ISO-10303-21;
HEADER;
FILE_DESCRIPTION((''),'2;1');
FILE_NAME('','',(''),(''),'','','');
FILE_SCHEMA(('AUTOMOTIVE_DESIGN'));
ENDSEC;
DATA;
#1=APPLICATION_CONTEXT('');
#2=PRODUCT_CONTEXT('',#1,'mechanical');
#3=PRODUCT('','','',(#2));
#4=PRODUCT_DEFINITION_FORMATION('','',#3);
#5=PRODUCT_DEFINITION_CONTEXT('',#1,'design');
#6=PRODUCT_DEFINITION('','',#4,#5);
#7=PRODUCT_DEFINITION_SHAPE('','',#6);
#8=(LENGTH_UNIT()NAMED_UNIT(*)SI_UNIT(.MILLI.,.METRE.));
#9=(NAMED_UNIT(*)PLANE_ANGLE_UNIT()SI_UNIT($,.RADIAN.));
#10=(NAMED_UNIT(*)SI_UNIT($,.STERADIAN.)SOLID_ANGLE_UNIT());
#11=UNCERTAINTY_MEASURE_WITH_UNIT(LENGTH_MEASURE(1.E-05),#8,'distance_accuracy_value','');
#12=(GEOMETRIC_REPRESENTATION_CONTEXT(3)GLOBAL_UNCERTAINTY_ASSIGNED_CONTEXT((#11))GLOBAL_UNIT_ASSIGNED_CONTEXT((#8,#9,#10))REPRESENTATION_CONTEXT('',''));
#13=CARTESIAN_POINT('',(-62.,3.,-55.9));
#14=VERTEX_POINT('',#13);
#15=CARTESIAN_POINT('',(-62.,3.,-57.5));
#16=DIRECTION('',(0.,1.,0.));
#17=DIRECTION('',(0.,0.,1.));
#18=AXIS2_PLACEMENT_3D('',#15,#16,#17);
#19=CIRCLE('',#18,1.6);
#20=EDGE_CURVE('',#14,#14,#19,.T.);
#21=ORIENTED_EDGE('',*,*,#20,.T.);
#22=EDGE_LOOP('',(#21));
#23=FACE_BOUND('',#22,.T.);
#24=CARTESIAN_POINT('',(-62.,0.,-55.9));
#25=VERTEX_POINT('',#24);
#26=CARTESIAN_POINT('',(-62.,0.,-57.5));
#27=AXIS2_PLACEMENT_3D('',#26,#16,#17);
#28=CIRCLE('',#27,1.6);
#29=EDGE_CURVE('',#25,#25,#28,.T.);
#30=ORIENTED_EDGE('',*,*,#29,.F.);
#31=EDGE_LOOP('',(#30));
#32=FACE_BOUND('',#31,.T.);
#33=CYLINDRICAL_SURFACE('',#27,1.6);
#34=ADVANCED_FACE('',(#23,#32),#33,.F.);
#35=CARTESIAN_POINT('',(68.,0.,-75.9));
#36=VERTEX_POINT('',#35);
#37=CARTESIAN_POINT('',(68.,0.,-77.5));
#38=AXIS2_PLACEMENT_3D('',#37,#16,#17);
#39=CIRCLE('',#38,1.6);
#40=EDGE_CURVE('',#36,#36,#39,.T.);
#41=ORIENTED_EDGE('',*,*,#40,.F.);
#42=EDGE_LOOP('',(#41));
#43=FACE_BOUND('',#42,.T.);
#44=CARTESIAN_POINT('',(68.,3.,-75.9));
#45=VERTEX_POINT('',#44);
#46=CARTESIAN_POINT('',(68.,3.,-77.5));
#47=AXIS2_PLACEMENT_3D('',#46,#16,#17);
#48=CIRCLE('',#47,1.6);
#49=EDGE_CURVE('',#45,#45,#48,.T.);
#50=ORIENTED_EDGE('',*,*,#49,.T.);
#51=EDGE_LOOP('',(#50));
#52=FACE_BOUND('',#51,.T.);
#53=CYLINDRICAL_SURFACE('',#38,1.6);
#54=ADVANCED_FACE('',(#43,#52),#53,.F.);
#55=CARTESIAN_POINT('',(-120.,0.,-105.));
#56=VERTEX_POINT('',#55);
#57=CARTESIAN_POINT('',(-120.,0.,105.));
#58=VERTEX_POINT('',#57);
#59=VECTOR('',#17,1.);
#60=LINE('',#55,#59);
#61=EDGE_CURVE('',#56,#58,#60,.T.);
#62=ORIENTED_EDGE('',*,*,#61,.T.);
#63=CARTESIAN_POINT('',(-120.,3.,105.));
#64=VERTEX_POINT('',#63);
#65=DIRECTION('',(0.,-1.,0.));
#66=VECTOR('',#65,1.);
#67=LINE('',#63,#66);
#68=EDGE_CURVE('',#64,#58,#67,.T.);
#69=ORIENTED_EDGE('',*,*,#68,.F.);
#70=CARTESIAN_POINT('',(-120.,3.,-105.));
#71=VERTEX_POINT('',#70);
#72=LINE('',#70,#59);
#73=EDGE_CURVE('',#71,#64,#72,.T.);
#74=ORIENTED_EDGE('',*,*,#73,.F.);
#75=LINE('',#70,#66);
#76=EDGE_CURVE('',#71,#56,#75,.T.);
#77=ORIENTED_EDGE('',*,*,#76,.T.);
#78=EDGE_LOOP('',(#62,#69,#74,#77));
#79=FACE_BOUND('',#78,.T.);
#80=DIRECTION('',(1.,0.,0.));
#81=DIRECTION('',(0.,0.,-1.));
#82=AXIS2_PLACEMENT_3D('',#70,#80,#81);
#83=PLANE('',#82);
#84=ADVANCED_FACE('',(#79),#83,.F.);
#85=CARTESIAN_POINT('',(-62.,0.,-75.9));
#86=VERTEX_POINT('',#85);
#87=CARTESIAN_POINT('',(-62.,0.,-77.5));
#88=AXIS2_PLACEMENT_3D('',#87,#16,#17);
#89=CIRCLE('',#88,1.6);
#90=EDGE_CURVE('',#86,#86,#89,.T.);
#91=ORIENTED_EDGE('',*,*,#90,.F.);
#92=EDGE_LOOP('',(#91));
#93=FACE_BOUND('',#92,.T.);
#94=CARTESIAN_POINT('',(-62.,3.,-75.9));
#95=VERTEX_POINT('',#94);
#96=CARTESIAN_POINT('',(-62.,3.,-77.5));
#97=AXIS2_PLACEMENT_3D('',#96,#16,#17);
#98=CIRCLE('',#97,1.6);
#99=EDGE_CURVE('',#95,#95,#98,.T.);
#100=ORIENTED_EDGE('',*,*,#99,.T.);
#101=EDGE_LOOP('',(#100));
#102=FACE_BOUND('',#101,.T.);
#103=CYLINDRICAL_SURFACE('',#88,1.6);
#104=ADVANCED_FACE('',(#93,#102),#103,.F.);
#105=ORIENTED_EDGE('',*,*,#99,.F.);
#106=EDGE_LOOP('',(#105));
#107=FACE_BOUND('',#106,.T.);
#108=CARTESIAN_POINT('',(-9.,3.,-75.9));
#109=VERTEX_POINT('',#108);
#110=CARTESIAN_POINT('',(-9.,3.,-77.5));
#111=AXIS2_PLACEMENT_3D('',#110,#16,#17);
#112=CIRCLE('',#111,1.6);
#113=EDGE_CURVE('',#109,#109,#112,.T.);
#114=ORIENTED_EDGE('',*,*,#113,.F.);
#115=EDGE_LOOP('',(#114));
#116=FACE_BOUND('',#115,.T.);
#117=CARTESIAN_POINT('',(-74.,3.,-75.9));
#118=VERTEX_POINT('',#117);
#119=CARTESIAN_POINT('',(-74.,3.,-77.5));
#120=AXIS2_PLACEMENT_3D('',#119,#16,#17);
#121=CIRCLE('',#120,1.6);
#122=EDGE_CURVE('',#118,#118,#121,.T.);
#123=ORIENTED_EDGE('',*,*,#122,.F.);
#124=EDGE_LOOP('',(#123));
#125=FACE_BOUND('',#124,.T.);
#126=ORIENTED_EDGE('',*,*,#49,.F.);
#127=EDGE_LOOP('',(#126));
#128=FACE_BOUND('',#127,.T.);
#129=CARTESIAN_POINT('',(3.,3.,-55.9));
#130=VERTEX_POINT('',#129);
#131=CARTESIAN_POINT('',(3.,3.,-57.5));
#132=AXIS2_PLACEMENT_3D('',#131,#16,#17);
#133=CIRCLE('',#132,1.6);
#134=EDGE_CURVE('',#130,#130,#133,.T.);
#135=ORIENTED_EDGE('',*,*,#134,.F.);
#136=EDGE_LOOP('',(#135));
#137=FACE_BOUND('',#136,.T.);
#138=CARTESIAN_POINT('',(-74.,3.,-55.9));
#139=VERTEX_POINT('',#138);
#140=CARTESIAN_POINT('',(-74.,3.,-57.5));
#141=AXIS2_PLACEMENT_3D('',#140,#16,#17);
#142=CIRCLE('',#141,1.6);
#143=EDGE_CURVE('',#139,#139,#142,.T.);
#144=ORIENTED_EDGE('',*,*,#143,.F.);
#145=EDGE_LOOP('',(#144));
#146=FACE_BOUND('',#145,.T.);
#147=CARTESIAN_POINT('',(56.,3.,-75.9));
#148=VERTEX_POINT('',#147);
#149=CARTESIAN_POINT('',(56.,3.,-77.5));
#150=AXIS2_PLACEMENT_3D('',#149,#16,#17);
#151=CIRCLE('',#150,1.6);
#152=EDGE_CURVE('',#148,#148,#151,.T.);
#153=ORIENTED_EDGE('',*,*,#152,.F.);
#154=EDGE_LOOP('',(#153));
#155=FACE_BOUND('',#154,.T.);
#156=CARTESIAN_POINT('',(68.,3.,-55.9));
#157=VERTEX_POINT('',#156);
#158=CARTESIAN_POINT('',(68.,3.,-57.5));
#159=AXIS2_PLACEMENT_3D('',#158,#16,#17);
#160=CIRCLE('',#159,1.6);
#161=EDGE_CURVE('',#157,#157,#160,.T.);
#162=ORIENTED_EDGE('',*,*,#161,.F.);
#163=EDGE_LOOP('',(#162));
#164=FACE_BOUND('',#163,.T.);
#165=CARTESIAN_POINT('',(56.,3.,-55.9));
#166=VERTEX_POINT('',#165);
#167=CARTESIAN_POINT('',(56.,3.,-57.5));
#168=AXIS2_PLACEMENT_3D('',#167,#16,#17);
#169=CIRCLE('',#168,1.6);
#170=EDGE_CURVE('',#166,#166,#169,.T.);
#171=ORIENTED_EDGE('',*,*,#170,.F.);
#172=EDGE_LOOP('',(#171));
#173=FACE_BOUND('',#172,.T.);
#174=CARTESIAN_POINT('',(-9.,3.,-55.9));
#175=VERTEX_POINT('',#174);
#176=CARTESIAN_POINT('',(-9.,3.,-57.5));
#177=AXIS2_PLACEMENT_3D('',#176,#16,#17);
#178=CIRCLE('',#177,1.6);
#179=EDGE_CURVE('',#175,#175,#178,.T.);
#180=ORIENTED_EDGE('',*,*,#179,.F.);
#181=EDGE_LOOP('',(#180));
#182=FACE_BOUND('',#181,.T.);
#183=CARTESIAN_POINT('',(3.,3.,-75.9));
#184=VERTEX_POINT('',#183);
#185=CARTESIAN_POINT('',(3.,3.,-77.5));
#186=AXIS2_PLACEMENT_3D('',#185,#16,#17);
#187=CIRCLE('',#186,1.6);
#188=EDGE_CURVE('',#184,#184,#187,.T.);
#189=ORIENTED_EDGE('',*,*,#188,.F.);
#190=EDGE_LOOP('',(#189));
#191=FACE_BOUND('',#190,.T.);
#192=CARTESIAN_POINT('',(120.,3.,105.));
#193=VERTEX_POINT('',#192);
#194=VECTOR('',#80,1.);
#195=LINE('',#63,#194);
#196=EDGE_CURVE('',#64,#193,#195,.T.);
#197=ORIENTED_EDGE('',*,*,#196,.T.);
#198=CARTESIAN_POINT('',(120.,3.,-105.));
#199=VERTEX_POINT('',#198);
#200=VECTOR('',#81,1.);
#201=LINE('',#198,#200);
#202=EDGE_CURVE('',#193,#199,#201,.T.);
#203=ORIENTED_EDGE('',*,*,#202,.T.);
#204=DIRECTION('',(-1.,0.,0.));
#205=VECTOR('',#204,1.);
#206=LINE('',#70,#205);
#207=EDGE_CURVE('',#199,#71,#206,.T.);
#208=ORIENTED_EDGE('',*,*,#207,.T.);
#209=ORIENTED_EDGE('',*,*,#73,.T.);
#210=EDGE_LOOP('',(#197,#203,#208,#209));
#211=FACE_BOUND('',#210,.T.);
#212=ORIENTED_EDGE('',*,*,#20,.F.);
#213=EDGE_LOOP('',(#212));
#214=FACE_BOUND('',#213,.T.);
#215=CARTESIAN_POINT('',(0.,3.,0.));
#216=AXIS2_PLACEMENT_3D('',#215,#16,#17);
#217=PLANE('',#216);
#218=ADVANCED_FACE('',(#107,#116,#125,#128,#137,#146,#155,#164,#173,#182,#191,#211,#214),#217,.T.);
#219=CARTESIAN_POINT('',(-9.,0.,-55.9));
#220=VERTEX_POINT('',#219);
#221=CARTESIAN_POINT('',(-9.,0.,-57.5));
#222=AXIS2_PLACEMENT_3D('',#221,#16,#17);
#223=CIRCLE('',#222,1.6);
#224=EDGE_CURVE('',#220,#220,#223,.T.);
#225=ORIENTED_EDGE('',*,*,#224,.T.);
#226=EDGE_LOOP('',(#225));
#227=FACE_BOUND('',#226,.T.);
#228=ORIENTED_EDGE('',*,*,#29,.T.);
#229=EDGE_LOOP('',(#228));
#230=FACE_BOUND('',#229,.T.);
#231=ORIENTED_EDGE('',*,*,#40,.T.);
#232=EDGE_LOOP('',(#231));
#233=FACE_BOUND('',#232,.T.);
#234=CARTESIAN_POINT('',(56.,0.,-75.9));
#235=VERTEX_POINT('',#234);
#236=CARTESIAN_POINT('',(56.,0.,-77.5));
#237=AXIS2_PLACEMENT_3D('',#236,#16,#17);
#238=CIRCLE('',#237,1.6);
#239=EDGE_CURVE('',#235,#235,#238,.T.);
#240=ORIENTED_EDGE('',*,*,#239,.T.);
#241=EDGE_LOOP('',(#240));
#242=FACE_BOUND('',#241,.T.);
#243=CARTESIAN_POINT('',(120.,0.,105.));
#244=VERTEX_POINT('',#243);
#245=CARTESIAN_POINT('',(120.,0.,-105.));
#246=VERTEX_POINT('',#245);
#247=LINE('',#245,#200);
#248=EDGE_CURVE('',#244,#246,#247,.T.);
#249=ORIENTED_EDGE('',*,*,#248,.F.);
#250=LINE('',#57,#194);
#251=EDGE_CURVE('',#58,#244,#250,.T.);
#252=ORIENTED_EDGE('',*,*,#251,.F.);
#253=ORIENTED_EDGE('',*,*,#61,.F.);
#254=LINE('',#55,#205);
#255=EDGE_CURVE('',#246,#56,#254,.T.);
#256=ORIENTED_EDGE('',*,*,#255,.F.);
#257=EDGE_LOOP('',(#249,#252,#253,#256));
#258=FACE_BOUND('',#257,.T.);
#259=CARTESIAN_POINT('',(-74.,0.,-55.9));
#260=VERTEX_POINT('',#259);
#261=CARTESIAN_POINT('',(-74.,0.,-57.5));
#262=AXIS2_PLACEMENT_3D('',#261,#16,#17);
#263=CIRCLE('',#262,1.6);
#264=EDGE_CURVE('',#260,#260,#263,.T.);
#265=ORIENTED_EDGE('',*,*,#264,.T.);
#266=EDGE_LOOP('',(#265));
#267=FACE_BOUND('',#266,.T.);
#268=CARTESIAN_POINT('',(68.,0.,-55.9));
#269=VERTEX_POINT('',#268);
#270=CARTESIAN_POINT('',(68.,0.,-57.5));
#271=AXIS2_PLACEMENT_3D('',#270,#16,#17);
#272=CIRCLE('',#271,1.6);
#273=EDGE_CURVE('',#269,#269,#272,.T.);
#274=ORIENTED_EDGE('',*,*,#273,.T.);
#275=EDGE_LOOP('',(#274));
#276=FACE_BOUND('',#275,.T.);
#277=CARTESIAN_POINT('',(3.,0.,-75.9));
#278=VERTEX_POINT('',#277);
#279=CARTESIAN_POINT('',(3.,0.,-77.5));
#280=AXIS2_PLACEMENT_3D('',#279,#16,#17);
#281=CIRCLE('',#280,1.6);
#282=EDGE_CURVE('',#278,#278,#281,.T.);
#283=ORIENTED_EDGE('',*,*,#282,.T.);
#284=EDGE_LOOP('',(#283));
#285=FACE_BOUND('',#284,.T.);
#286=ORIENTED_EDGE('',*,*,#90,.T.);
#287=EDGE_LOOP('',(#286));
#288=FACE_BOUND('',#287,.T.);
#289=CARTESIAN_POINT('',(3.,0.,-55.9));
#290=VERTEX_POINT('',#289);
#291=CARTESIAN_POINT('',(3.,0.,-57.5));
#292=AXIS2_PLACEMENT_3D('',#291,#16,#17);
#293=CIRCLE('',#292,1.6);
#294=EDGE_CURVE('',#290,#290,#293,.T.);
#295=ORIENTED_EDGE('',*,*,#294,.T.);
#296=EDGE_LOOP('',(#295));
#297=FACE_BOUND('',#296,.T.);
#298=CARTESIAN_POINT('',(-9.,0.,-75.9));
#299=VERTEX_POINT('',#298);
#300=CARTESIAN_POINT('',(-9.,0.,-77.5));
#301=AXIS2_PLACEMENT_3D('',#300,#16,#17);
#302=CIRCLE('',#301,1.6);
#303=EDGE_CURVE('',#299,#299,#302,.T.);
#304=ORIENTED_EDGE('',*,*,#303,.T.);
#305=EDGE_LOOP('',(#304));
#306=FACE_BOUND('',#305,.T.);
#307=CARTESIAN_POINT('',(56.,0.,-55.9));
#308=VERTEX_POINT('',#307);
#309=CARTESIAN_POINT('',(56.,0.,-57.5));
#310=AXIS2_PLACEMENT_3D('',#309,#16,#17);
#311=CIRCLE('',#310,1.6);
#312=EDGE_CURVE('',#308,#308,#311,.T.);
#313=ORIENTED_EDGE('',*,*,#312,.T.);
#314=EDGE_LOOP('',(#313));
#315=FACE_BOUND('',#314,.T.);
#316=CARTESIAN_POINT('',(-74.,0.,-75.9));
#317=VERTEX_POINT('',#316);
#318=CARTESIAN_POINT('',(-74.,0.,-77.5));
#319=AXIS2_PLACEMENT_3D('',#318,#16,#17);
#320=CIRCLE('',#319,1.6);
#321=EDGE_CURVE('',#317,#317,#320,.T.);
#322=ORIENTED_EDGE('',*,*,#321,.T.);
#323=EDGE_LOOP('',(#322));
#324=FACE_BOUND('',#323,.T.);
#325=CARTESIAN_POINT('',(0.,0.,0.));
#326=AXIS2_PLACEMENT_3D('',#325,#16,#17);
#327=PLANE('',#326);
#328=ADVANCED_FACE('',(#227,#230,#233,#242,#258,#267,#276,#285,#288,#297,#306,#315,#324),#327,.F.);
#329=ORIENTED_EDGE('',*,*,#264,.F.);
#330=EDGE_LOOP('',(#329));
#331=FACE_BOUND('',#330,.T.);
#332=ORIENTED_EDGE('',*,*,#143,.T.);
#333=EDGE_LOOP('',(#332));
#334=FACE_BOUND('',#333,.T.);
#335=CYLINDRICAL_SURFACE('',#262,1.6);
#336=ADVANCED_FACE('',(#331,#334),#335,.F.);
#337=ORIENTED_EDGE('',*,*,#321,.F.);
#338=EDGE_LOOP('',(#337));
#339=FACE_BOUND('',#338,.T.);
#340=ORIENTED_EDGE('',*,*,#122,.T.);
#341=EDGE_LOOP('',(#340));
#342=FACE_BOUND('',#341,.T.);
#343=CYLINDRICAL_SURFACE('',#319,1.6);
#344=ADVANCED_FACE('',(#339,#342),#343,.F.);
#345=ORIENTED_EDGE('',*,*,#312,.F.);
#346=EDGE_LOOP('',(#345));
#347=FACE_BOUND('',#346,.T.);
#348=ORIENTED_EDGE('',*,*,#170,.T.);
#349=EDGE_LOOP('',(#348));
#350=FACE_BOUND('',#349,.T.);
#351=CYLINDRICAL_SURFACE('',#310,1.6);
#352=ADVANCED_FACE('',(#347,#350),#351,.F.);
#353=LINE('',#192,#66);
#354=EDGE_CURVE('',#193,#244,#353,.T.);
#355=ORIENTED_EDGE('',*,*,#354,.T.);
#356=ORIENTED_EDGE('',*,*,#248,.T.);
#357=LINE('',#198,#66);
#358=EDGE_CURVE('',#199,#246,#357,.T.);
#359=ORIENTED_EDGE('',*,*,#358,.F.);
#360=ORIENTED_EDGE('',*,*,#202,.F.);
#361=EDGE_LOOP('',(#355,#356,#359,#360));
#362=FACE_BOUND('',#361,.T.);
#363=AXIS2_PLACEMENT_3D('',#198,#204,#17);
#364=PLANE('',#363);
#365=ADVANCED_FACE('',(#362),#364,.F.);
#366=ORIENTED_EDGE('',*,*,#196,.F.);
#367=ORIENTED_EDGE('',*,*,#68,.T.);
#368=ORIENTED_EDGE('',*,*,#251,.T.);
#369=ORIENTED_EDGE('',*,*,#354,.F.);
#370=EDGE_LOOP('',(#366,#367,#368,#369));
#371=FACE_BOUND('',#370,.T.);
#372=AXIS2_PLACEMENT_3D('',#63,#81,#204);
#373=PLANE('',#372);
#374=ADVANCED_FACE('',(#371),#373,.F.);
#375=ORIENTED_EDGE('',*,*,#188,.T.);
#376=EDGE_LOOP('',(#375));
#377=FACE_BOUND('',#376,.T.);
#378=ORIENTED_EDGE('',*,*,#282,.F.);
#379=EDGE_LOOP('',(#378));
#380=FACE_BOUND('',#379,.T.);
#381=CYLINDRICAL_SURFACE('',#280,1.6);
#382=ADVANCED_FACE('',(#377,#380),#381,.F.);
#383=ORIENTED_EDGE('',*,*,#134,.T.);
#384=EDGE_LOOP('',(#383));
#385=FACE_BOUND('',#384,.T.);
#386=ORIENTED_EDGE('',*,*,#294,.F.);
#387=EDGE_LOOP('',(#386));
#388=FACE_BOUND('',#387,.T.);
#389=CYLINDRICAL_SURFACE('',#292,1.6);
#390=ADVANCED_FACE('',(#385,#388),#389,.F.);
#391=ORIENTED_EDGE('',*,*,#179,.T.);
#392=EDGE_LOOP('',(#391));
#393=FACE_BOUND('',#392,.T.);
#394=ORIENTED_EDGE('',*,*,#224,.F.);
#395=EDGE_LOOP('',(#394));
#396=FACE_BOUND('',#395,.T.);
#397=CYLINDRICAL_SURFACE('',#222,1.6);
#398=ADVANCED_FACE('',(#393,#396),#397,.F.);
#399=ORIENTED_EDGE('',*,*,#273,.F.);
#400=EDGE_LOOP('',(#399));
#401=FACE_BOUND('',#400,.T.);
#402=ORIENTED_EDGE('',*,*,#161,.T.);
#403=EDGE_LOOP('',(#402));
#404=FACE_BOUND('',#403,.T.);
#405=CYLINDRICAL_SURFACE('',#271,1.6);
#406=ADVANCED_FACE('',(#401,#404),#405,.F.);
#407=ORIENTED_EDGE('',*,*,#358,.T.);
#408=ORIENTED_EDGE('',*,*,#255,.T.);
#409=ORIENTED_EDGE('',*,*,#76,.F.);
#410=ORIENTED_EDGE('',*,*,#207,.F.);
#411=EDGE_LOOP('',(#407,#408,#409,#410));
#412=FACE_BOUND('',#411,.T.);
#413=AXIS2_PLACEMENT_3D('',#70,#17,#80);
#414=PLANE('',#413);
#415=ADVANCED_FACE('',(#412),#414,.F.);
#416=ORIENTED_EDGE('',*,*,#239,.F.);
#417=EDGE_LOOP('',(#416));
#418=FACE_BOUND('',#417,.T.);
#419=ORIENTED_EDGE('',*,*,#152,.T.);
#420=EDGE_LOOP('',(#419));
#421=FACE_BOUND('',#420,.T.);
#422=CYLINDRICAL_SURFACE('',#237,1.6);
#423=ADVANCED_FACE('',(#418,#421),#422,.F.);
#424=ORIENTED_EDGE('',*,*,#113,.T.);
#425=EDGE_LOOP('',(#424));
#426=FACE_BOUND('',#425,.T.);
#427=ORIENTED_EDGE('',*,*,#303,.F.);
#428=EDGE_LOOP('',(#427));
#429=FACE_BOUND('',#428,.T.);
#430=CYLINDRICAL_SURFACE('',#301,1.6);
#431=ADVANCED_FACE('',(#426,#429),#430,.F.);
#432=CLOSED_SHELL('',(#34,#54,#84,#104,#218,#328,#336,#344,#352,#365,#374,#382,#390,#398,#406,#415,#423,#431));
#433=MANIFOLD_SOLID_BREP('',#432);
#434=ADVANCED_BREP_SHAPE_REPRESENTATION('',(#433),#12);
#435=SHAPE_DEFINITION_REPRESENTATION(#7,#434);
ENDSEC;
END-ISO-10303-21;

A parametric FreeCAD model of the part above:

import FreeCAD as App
import Part
import Sketcher

V = App.Vector
Q = App.Units.Quantity

doc = App.newDocument("Part")
params = doc.addObject("Spreadsheet::Sheet", "Params")
for row, (alias, value) in enumerate([
    ("sketch1_width", "240 mm"),
    ("sketch1_height", "210 mm"),
    ("pad1_length", "3 mm"),
    ("sketch2_diameter", "3.2 mm"),
    ("pocket1_length", "320.960813 mm"),
    ("linearpattern_pitch", "65 mm"),
], start=1):
    params.set(f"A{row}", alias)
    params.set(f"B{row}", "=" + value)
    params.setAlias(f"B{row}", alias)

body = doc.addObject("PartDesign::Body", "Body")

sketch1 = body.newObject("Sketcher::SketchObject", "Sketch")
sketch1.AttachmentSupport = (doc.getObject("XZ_Plane"), [""])
sketch1.MapMode = "FlatFace"
sketch1.addGeometry([
    Part.LineSegment(V(-120, -105, 0), V(-120, 105, 0)),
    Part.LineSegment(V(-120, 105, 0), V(120, 105, 0)),
    Part.LineSegment(V(120, 105, 0), V(120, -105, 0)),
    Part.LineSegment(V(120, -105, 0), V(-120, -105, 0)),
], False)
sketch1.addConstraint([
    Sketcher.Constraint("Coincident", 0, 2, 1, 1),
    Sketcher.Constraint("Coincident", 1, 2, 2, 1),
    Sketcher.Constraint("Coincident", 2, 2, 3, 1),
    Sketcher.Constraint("Coincident", 3, 2, 0, 1),
    Sketcher.Constraint("Vertical", 0),
    Sketcher.Constraint("Horizontal", 1),
    Sketcher.Constraint("Vertical", 2),
    Sketcher.Constraint("Horizontal", 3),
    Sketcher.Constraint("Symmetric", 0, 2, 2, 2, -1, 1),
    Sketcher.Constraint("DistanceX", 1, 1, 1, 2, Q("240 mm")),
    Sketcher.Constraint("DistanceY", 0, 1, 0, 2, Q("210 mm")),
])
sketch1.setExpression("Constraints[9]", "Params.sketch1_width")
sketch1.setExpression("Constraints[10]", "Params.sketch1_height")
pad1 = body.newObject("PartDesign::Pad", "Pad")
pad1.Profile = sketch1
pad1.setExpression("Length", "Params.pad1_length")
pad1.Reversed = True

sketch2 = body.newObject("Sketcher::SketchObject", "Sketch001")
sketch2.AttachmentSupport = (doc.getObject("XZ_Plane"), [""])
sketch2.MapMode = "FlatFace"
sketch2.AttachmentOffset = App.Placement(V(0, 0, -3), App.Rotation())
sketch2.addGeometry([
    Part.Circle(V(68, -77.5, 0), V(0, 0, 1), 1.6),
    Part.Circle(V(56, -77.5, 0), V(0, 0, 1), 1.6),
    Part.Circle(V(56, -57.5, 0), V(0, 0, 1), 1.6),
    Part.Circle(V(68, -57.5, 0), V(0, 0, 1), 1.6),
], False)
sketch2.addConstraint([
    Sketcher.Constraint("Equal", 0, 1),
    Sketcher.Constraint("Equal", 1, 2),
    Sketcher.Constraint("Equal", 2, 3),
    Sketcher.Constraint("Horizontal", 0, 3, 1, 3),
    Sketcher.Constraint("Horizontal", 2, 3, 3, 3),
    Sketcher.Constraint("Vertical", 1, 3, 2, 3),
    Sketcher.Constraint("Vertical", 0, 3, 3, 3),
    Sketcher.Constraint("Diameter", 0, Q("3.2 mm")),
    Sketcher.Constraint("DistanceX", -1, 1, 0, 3, Q("68 mm")),
    Sketcher.Constraint("DistanceX", -1, 1, 1, 3, Q("56 mm")),
    Sketcher.Constraint("DistanceY", 1, 3, 2, 3, Q("20 mm")),
    Sketcher.Constraint("DistanceY", 0, 3, -1, 1, Q("77.5 mm")),
])
sketch2.setExpression("Constraints[7]", "Params.sketch2_diameter")
pocket1 = body.newObject("PartDesign::Pocket", "Pocket")
pocket1.Profile = sketch2
pocket1.setExpression("Length", "Params.pocket1_length")
pocket1.Midplane = True
doc.recompute()

linearpattern = body.newObject("PartDesign::LinearPattern", "LinearPattern")
linearpattern.Originals = [pocket1]
linearpattern.Direction = (doc.getObject("X_Axis"), [""])
linearpattern.Mode = "offset"
linearpattern.setExpression("Offset", "Params.linearpattern_pitch")
linearpattern.Occurrences = 3
linearpattern.Reversed = True
body.Tip = linearpattern

doc.recompute()
